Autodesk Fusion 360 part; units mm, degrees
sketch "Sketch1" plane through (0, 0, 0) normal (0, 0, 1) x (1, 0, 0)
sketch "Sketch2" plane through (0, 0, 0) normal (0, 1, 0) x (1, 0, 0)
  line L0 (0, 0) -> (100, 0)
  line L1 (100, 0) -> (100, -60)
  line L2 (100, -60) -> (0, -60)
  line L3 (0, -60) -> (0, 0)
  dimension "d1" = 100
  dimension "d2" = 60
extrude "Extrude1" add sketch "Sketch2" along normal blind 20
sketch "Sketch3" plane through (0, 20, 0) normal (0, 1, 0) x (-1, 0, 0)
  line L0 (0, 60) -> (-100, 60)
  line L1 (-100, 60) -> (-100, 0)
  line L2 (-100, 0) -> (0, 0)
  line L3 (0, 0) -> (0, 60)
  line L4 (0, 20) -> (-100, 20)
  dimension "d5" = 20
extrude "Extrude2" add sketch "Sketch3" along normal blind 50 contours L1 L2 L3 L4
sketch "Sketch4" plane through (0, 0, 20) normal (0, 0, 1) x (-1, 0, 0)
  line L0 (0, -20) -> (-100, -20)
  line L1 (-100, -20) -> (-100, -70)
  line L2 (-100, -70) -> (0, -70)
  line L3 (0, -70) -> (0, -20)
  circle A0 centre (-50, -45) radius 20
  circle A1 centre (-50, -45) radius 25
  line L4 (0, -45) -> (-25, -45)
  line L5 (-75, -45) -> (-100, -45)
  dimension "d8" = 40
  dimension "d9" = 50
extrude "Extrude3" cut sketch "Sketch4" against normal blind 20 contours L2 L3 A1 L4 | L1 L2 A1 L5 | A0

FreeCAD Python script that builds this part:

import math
import FreeCAD as App
import Part
import Sketcher
Q = App.Units.Quantity

doc = App.newDocument("Part")
body = doc.addObject("PartDesign::Body", "Body")

# Sketch on XZ plane
sketch1 = doc.addObject("Sketcher::SketchObject", "Sketch")
body.addObject(sketch1)
sketch1.AttachmentSupport = (doc.XZ_Plane, [""])
sketch1.MapMode = "FlatFace"
sketch1.addGeometry([
    Part.LineSegment(App.Vector(100, 0, 0), App.Vector(0, 0, 0)),
    Part.LineSegment(App.Vector(0, 0, 0), App.Vector(0, 60, 0)),
    Part.LineSegment(App.Vector(0, 60, 0), App.Vector(100, 60, 0)),
    Part.LineSegment(App.Vector(100, 60, 0), App.Vector(100, 0, 0)),
], False)
sketch1.addConstraint([
    Sketcher.Constraint("Coincident", 0, 2, 1, 1),
    Sketcher.Constraint("Coincident", 1, 2, 2, 1),
    Sketcher.Constraint("Coincident", 2, 2, 3, 1),
    Sketcher.Constraint("Coincident", 3, 2, 0, 1),
    Sketcher.Constraint("Horizontal", 0),
    Sketcher.Constraint("Vertical", 1),
    Sketcher.Constraint("Horizontal", 2),
    Sketcher.Constraint("Vertical", 3),
    Sketcher.Constraint("Coincident", 0, 2, -1, 1),
    Sketcher.Constraint("DistanceX", 0, 2, 0, 1, Q("100 mm")),
    Sketcher.Constraint("DistanceY", 1, 1, 1, 2, Q("60 mm")),
])
pad1 = doc.addObject("PartDesign::Pad", "Pad")
body.addObject(pad1)
pad1.Profile = sketch1
pad1.Length = 20
pad1.Reversed = True

# Sketch on XZ plane
sketch2 = doc.addObject("Sketcher::SketchObject", "Sketch001")
body.addObject(sketch2)
sketch2.AttachmentSupport = (doc.XZ_Plane, [""])
sketch2.MapMode = "FlatFace"
sketch2.AttachmentOffset = App.Placement(App.Vector(0, 0, -20), App.Rotation())
sketch2.addGeometry([
    Part.LineSegment(App.Vector(0, 0, 0), App.Vector(0, 20, 0)),
    Part.LineSegment(App.Vector(0, 20, 0), App.Vector(100, 20, 0)),
    Part.LineSegment(App.Vector(100, 20, 0), App.Vector(100, 0, 0)),
    Part.LineSegment(App.Vector(100, 0, 0), App.Vector(0, 0, 0)),
], False)
sketch2.addConstraint([
    Sketcher.Constraint("Coincident", 0, 2, 1, 1),
    Sketcher.Constraint("Coincident", 1, 2, 2, 1),
    Sketcher.Constraint("Coincident", 2, 2, 3, 1),
    Sketcher.Constraint("Coincident", 3, 2, 0, 1),
    Sketcher.Constraint("Vertical", 0),
    Sketcher.Constraint("Horizontal", 1),
    Sketcher.Constraint("Vertical", 2),
    Sketcher.Constraint("Horizontal", 3),
    Sketcher.Constraint("Coincident", 3, 2, -1, 1),
    Sketcher.Constraint("DistanceY", 0, 1, 0, 2, Q("20 mm")),
    Sketcher.Constraint("DistanceX", 1, 1, 1, 2, Q("100 mm")),
])
pad2 = doc.addObject("PartDesign::Pad", "Pad001")
body.addObject(pad2)
pad2.Profile = sketch2
pad2.Length = 50
pad2.Reversed = True

# Sketch on XY plane
sketch3 = doc.addObject("Sketcher::SketchObject", "Sketch002")
body.addObject(sketch3)
sketch3.AttachmentSupport = (doc.XY_Plane, [""])
sketch3.MapMode = "FlatFace"
sketch3.AttachmentOffset = App.Placement(App.Vector(0, 0, 20), App.Rotation())
sketch3.addGeometry([
    Part.LineSegment(App.Vector(0, 70, 0), App.Vector(0, 45, 0)),  # 0
    Part.LineSegment(App.Vector(0, 45, 0), App.Vector(25, 45, 0)),  # 1
    Part.ArcOfCircle(Part.Circle(App.Vector(50, 45, 0), App.Vector(0, 0, 1), 25), math.radians(90), math.radians(180)),  # 2
    Part.LineSegment(App.Vector(50, 70, 0), App.Vector(0, 70, 0)),  # 3
    Part.ArcOfCircle(Part.Circle(App.Vector(50, 45, 0), App.Vector(0, 0, 1), 25), math.radians(0), math.radians(90)),  # 4
    Part.LineSegment(App.Vector(75, 45, 0), App.Vector(100, 45, 0)),  # 5
    Part.LineSegment(App.Vector(100, 45, 0), App.Vector(100, 70, 0)),  # 6
    Part.LineSegment(App.Vector(100, 70, 0), App.Vector(50, 70, 0)),  # 7
    Part.Circle(App.Vector(50, 45, 0), App.Vector(0, 0, 1), 20),  # 8
], False)
sketch3.addConstraint([
    Sketcher.Constraint("Coincident", 0, 2, 1, 1),
    Sketcher.Constraint("Coincident", 1, 2, 2, 2),
    Sketcher.Constraint("Tangent", 2, 1, 3, 1),
    Sketcher.Constraint("Coincident", 3, 2, 0, 1),
    Sketcher.Constraint("Coincident", 4, 1, 5, 1),
    Sketcher.Constraint("Coincident", 5, 2, 6, 1),
    Sketcher.Constraint("Coincident", 6, 2, 7, 1),
    Sketcher.Constraint("Tangent", 7, 2, 4, 2),
    Sketcher.Constraint("Vertical", 0),
    Sketcher.Constraint("Horizontal", 1),
    Sketcher.Constraint("Horizontal", 3),
    Sketcher.Constraint("Horizontal", 5),
    Sketcher.Constraint("Vertical", 6),
    Sketcher.Constraint("Horizontal", 7),
    Sketcher.Constraint("Coincident", 4, 3, 2, 3),
    Sketcher.Constraint("Coincident", 8, 3, 2, 3),
    Sketcher.Constraint("Equal", 2, 4),
    Sketcher.Constraint("PointOnObject", 0, 2, -2),
    Sketcher.Constraint("Horizontal", 8, 3, 0, 2),
    Sketcher.Constraint("Horizontal", 1, 2, 4, 1),
    Sketcher.Constraint("Equal", 1, 5),
    Sketcher.Constraint("Equal", 5, 0),
    Sketcher.Constraint("Diameter", 8, Q("40 mm")),
    Sketcher.Constraint("Radius", 2, Q("25 mm")),
    Sketcher.Constraint("DistanceY", -1, 1, 2, 3, Q("45 mm")),
])
pocket1 = doc.addObject("PartDesign::Pocket", "Pocket")
body.addObject(pocket1)
pocket1.Profile = sketch3
pocket1.Length = 20

doc.recompute()
